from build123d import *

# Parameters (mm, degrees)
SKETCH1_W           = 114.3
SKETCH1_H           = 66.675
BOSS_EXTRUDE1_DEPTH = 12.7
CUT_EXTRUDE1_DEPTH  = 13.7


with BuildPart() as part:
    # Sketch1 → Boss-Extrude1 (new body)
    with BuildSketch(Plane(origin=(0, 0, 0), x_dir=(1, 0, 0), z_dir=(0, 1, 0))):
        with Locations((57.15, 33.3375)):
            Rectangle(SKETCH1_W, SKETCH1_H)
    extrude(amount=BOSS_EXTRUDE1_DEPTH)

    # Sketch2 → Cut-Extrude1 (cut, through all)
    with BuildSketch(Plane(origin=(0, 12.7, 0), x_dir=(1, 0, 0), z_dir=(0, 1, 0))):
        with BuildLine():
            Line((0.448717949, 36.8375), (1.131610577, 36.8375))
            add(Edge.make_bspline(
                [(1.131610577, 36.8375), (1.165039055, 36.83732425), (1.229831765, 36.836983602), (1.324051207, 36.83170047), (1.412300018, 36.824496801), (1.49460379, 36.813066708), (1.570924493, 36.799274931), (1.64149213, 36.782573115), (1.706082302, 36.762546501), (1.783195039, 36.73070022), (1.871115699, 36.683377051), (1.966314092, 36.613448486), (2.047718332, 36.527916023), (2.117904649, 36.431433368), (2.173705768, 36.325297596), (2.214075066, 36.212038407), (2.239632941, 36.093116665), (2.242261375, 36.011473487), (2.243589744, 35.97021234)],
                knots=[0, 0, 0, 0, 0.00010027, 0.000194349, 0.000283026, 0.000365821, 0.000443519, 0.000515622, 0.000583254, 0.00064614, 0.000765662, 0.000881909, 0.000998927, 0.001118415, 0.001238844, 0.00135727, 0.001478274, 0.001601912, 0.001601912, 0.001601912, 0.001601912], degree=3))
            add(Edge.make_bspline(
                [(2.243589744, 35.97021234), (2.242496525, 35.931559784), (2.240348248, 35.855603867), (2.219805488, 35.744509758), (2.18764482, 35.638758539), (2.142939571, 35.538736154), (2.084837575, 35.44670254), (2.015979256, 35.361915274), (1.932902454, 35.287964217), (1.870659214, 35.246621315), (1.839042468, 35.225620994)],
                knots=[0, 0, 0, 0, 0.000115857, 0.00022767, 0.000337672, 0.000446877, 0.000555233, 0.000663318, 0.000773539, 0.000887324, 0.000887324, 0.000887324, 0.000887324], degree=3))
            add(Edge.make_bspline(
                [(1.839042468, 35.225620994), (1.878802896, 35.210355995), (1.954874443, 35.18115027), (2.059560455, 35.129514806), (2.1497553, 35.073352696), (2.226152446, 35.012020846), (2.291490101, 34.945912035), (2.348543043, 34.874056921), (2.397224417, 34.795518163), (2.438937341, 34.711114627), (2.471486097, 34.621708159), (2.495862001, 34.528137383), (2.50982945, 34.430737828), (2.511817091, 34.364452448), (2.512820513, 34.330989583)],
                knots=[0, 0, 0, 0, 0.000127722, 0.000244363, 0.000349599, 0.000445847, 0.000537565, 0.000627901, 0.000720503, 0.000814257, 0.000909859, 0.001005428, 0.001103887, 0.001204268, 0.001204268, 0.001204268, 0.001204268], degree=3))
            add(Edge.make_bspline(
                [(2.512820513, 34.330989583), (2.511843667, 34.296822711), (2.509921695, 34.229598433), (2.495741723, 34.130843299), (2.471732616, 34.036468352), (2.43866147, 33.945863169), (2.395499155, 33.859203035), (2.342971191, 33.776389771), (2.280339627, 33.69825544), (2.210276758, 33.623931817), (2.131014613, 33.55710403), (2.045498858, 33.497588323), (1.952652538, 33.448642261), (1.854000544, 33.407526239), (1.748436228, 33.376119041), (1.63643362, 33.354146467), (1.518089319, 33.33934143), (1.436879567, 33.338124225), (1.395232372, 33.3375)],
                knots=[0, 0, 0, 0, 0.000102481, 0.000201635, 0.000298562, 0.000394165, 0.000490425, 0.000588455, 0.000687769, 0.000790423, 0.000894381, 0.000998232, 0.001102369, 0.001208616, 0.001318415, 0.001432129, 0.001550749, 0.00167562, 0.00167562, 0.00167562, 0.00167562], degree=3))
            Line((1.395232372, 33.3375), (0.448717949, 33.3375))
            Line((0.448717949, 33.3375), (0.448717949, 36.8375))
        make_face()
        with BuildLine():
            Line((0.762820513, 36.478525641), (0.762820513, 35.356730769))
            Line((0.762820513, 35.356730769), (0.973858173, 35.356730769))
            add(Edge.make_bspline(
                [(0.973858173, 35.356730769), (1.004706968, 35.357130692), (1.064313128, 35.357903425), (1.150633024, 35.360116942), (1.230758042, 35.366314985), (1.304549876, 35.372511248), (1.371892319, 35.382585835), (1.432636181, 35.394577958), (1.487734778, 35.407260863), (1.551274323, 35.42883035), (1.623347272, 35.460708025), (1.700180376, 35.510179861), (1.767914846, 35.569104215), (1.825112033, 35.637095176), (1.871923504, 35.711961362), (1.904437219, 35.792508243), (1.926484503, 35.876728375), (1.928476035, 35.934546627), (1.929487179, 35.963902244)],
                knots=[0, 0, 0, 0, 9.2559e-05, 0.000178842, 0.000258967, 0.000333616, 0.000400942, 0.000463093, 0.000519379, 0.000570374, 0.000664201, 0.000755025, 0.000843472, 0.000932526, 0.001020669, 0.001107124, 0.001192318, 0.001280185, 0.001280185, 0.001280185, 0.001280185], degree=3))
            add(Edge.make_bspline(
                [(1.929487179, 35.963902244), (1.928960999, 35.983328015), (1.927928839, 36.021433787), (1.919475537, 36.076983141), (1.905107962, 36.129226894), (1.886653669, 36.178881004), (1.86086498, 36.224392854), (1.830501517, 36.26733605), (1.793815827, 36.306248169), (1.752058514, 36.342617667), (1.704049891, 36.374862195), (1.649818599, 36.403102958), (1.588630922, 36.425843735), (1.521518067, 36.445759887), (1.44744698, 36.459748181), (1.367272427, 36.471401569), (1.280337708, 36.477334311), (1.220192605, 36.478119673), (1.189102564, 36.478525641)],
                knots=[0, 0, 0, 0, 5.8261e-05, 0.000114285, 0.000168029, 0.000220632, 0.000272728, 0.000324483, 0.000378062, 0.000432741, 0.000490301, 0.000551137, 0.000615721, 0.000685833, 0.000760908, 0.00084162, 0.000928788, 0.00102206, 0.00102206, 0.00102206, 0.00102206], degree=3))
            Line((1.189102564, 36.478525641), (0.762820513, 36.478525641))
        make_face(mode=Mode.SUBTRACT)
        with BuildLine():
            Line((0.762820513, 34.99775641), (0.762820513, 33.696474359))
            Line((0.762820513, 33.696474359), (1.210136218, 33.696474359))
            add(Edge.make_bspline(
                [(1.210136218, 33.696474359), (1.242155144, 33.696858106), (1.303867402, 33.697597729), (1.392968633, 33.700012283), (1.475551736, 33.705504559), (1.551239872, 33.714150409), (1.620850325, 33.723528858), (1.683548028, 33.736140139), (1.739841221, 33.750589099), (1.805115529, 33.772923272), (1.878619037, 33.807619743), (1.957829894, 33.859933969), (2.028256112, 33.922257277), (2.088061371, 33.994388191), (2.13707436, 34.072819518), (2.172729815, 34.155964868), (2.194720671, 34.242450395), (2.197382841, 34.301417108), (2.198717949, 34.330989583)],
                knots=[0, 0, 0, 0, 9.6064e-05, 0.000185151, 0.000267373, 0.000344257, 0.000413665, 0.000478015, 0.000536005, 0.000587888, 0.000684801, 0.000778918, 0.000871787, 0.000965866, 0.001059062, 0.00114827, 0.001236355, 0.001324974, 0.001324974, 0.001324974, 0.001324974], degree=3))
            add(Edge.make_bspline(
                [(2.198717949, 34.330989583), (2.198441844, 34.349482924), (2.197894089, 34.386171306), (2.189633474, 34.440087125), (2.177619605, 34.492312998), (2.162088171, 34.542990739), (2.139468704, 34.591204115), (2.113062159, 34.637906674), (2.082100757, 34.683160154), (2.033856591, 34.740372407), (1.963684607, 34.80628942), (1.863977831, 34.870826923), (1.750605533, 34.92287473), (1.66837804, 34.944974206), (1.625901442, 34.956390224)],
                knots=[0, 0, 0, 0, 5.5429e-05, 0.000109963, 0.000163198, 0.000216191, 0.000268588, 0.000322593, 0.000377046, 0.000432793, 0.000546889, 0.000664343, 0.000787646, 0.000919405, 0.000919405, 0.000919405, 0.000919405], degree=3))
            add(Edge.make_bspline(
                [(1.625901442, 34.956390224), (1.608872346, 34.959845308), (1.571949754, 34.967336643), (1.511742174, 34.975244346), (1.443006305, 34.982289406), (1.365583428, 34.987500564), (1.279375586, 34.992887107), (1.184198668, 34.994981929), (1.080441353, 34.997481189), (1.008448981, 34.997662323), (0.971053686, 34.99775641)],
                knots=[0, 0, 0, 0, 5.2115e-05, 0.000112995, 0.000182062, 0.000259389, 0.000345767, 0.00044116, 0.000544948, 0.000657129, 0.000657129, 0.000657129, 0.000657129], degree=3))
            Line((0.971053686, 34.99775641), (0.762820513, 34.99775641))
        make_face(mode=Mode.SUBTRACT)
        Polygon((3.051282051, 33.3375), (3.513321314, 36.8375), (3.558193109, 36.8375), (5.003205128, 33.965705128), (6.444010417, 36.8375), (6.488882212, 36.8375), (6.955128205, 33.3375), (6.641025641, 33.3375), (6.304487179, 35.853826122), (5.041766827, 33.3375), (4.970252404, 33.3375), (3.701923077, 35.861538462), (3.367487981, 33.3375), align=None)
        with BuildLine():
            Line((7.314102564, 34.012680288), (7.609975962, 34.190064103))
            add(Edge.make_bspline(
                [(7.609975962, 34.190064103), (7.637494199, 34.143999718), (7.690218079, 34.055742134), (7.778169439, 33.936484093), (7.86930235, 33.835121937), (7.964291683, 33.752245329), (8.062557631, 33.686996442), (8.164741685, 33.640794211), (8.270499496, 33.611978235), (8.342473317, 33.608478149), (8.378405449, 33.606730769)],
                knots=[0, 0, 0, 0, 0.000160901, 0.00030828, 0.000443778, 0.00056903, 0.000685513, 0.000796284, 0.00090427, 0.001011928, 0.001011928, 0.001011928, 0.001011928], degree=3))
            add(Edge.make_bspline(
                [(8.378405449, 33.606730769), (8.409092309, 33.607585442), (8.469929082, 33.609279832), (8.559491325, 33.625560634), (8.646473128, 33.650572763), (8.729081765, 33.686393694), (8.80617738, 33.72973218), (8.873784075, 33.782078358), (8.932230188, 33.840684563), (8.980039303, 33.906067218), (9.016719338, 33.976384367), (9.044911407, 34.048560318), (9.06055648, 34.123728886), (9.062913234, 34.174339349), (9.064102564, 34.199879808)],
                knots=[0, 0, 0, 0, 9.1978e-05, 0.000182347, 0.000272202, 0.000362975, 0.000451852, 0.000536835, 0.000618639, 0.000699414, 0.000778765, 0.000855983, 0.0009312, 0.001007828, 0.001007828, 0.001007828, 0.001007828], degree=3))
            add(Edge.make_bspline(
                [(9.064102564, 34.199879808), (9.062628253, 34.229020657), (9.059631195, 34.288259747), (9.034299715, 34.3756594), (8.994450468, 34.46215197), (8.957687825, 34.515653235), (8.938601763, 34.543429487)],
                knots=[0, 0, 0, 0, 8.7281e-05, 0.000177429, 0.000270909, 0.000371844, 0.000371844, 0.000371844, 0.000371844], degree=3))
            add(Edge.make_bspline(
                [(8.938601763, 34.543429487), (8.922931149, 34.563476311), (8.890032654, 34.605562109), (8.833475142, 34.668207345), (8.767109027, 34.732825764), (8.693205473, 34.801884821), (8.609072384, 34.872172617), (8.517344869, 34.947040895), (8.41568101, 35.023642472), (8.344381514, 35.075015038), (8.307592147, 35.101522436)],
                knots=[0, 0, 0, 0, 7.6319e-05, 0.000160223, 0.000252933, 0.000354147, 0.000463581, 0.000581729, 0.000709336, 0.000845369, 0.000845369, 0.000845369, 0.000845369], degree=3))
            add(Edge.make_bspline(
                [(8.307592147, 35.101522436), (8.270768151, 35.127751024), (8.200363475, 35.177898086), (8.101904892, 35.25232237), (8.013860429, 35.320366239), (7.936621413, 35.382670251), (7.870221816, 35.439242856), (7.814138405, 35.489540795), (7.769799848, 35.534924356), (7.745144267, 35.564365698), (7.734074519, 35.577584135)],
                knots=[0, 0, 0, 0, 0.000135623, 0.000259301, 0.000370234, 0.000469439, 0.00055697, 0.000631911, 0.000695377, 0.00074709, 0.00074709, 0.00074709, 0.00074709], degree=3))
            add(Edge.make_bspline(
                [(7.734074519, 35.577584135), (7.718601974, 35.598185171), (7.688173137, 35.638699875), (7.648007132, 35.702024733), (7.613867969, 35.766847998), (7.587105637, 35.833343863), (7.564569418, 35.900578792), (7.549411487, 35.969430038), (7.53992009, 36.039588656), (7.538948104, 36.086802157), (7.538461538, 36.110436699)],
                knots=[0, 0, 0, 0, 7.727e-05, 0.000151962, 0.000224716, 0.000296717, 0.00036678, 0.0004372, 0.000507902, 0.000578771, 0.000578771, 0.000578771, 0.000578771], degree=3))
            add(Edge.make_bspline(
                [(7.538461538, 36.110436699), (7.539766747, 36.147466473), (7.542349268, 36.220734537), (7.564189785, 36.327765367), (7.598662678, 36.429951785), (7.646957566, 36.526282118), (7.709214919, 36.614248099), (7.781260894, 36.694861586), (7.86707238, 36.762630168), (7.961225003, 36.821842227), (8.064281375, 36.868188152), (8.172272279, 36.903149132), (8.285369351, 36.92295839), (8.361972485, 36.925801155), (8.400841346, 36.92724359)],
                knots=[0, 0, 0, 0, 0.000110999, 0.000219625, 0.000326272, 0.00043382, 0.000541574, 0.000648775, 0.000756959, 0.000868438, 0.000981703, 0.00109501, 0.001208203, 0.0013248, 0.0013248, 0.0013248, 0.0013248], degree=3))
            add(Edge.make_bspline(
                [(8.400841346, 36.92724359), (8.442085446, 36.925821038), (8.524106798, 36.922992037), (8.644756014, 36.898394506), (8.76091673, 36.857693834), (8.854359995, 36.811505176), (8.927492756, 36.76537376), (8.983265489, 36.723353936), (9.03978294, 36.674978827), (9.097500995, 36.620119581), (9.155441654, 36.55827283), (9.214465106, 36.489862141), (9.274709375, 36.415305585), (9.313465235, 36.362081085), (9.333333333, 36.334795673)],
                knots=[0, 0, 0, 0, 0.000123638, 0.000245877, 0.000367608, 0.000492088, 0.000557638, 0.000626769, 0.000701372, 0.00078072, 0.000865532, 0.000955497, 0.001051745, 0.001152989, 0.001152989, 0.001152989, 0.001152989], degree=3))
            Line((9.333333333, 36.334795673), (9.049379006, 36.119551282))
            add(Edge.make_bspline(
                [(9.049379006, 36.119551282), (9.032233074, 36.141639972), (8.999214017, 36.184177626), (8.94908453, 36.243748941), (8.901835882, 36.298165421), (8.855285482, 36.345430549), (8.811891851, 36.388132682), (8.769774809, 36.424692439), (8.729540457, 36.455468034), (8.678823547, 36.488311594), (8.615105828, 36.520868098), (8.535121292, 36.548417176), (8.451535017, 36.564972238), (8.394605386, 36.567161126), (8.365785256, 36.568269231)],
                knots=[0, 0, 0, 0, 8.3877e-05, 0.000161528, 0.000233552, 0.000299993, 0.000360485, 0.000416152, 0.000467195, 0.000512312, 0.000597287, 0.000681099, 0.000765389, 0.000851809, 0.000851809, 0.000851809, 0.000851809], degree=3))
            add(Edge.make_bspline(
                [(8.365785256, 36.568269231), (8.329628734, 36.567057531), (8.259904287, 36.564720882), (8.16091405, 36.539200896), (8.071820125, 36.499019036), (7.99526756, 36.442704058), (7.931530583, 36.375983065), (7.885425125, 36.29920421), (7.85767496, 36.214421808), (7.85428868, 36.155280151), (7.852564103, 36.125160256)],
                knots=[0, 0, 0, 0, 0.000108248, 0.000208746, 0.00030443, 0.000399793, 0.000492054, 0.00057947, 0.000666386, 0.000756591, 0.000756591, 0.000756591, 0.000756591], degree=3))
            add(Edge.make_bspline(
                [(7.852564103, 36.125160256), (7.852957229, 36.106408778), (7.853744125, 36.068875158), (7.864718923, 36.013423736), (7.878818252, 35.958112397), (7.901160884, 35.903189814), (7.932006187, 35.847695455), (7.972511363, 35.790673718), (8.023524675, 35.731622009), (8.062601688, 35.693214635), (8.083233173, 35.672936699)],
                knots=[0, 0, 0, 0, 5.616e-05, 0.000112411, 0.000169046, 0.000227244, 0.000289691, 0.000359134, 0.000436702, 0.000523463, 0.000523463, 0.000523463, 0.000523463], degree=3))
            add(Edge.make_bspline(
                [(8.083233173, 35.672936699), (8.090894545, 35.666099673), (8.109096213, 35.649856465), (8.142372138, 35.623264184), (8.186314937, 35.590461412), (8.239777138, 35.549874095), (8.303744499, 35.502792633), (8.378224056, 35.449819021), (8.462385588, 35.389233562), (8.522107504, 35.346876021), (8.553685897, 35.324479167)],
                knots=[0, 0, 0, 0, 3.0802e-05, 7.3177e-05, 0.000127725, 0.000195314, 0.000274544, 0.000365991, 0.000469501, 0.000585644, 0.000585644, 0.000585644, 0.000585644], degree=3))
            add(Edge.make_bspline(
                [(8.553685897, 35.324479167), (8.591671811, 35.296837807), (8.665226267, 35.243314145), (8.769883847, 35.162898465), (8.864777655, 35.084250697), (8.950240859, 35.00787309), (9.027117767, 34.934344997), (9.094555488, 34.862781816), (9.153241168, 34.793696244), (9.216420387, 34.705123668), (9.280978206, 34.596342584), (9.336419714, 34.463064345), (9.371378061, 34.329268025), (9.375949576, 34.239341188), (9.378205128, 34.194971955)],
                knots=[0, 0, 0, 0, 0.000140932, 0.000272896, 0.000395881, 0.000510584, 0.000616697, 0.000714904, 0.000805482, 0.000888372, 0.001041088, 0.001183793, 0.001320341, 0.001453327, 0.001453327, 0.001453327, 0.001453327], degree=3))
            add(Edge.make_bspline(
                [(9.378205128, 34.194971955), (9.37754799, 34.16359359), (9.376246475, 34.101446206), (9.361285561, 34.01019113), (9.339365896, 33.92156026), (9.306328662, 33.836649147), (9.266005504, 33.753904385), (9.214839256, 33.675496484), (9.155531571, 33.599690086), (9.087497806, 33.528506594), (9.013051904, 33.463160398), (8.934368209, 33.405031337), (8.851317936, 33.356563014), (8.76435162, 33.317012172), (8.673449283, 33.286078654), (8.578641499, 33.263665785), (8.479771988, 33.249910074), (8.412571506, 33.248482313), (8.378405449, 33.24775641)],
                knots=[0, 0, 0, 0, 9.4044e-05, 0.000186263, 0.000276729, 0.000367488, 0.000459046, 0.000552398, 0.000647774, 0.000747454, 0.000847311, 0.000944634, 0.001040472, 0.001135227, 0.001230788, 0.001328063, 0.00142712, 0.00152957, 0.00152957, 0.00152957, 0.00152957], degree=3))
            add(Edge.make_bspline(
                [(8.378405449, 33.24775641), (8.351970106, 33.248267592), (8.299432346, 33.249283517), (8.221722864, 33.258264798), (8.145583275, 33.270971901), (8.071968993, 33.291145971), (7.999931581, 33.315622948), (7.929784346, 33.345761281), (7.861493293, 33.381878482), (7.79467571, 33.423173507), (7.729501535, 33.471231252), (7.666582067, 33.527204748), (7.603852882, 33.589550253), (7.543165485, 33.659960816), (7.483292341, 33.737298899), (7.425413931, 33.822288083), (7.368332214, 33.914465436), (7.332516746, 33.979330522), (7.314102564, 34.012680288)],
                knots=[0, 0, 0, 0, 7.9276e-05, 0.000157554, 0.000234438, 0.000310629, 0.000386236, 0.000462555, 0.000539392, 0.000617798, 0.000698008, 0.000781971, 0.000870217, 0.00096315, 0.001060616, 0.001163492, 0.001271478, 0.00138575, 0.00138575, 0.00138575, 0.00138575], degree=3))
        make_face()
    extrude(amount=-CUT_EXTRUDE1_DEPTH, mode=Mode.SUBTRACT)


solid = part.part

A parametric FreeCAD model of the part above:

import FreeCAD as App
import Part
import Sketcher
Q = App.Units.Quantity

doc = App.newDocument("Part")
body = doc.addObject("PartDesign::Body", "Body")
body.AllowCompound = True

# Sketch on XZ plane
sketch1 = body.newObject("Sketcher::SketchObject", "Sketch")
sketch1.AttachmentSupport = (doc.getObject("XZ_Plane"), [""])
sketch1.MapMode = "FlatFace"
sketch1.addGeometry([
    Part.LineSegment(App.Vector(0, -67, 0), App.Vector(0, 0, 0)),
    Part.LineSegment(App.Vector(0, 0, 0), App.Vector(114, 0, 0)),
    Part.LineSegment(App.Vector(114, 0, 0), App.Vector(114, -67, 0)),
    Part.LineSegment(App.Vector(114, -67, 0), App.Vector(0, -67, 0)),
], False)
sketch1.addConstraint([
    Sketcher.Constraint("Coincident", 0, 2, 1, 1),
    Sketcher.Constraint("Coincident", 1, 2, 2, 1),
    Sketcher.Constraint("Coincident", 2, 2, 3, 1),
    Sketcher.Constraint("Coincident", 3, 2, 0, 1),
    Sketcher.Constraint("Vertical", 0),
    Sketcher.Constraint("Horizontal", 1),
    Sketcher.Constraint("Vertical", 2),
    Sketcher.Constraint("Horizontal", 3),
    Sketcher.Constraint("Coincident", 0, 2, -1, 1),
    Sketcher.Constraint("DistanceX", 1, 1, 1, 2, Q("4.5 in")),
    Sketcher.Constraint("DistanceY", 0, 1, 0, 2, Q("2.625 in")),
])
pad1 = body.newObject("PartDesign::Pad", "Pad")
pad1.Profile = sketch1
pad1.Length = Q("0.5 in")
pad1.Reversed = True

# Sketch on XZ plane
sketch2 = body.newObject("Sketcher::SketchObject", "Sketch001")
sketch2.AttachmentSupport = (doc.getObject("XZ_Plane"), [""])
sketch2.MapMode = "FlatFace"
sketch2.AttachmentOffset = App.Placement(App.Vector(0, 0, -0.5 * 25.4), App.Rotation())
sketch2.addGeometry([
    Part.LineSegment(App.Vector(1.131611, -36.8375, 0), App.Vector(0.448718, -36.8375, 0)),  # 0
    Part.LineSegment(App.Vector(0.448718, -36.8375, 0), App.Vector(0.448718, -33.3375, 0)),  # 1
    Part.LineSegment(App.Vector(0.448718, -33.3375, 0), App.Vector(1.395232, -33.3375, 0)),  # 2
    Part.BSplineCurve([App.Vector(2.512821, -34.33099, 0), App.Vector(2.511844, -34.296823, 0), App.Vector(2.509922, -34.229598, 0), App.Vector(2.495742, -34.130843, 0), App.Vector(2.471733, -34.036468, 0), App.Vector(2.438661, -33.945863, 0), App.Vector(2.395499, -33.859203, 0), App.Vector(2.342971, -33.77639, 0), App.Vector(2.28034, -33.698255, 0), App.Vector(2.210277, -33.623932, 0), App.Vector(2.131015, -33.557104, 0), App.Vector(2.045499, -33.497588, 0), App.Vector(1.952653, -33.448642, 0), App.Vector(1.854001, -33.407526, 0), App.Vector(1.748436, -33.376119, 0), App.Vector(1.636434, -33.354146, 0), App.Vector(1.518089, -33.339341, 0), App.Vector(1.43688, -33.338124, 0), App.Vector(1.395232, -33.3375, 0)], [4, 1, 1, 1, 1, 1, 1, 1, 1, 1, 1, 1, 1, 1, 1, 1, 4], [0, 0.000102481, 0.000201635, 0.000298562, 0.000394165, 0.000490425, 0.000588455, 0.000687769, 0.000790423, 0.000894381, 0.000998232, 0.001102369, 0.001208616, 0.001318415, 0.001432129, 0.001550749, 0.00167562], False, 3, [1, 1, 1, 1, 1, 1, 1, 1, 1, 1, 1, 1, 1, 1, 1, 1, 1, 1, 1], False),  # 3
    Part.BSplineCurve([App.Vector(1.839042, -35.225621, 0), App.Vector(1.878803, -35.210356, 0), App.Vector(1.954874, -35.18115, 0), App.Vector(2.05956, -35.129515, 0), App.Vector(2.149755, -35.073353, 0), App.Vector(2.226152, -35.012021, 0), App.Vector(2.29149, -34.945912, 0), App.Vector(2.348543, -34.874057, 0), App.Vector(2.397224, -34.795518, 0), App.Vector(2.438937, -34.711115, 0), App.Vector(2.471486, -34.621708, 0), App.Vector(2.495862, -34.528137, 0), App.Vector(2.509829, -34.430738, 0), App.Vector(2.511817, -34.364452, 0), App.Vector(2.512821, -34.33099, 0)], [4, 1, 1, 1, 1, 1, 1, 1, 1, 1, 1, 1, 4], [0, 0.000127722, 0.000244363, 0.000349599, 0.000445847, 0.000537565, 0.000627901, 0.000720503, 0.000814257, 0.000909859, 0.001005428, 0.001103887, 0.001204268], False, 3, [1, 1, 1, 1, 1, 1, 1, 1, 1, 1, 1, 1, 1, 1, 1], False),  # 4
    Part.BSplineCurve([App.Vector(2.24359, -35.970212, 0), App.Vector(2.242497, -35.93156, 0), App.Vector(2.240348, -35.855604, 0), App.Vector(2.219805, -35.74451, 0), App.Vector(2.187645, -35.638759, 0), App.Vector(2.14294, -35.538736, 0), App.Vector(2.084838, -35.446703, 0), App.Vector(2.015979, -35.361915, 0), App.Vector(1.932902, -35.287964, 0), App.Vector(1.870659, -35.246621, 0), App.Vector(1.839042, -35.225621, 0)], [4, 1, 1, 1, 1, 1, 1, 1, 4], [0, 0.000115857, 0.00022767, 0.000337672, 0.000446877, 0.000555233, 0.000663318, 0.000773539, 0.000887324], False, 3, [1, 1, 1, 1, 1, 1, 1, 1, 1, 1, 1], False),  # 5
    Part.BSplineCurve([App.Vector(1.131611, -36.8375, 0), App.Vector(1.165039, -36.837324, 0), App.Vector(1.229832, -36.836984, 0), App.Vector(1.324051, -36.8317, 0), App.Vector(1.4123, -36.824497, 0), App.Vector(1.494604, -36.813067, 0), App.Vector(1.570924, -36.799275, 0), App.Vector(1.641492, -36.782573, 0), App.Vector(1.706082, -36.762547, 0), App.Vector(1.783195, -36.7307, 0), App.Vector(1.871116, -36.683377, 0), App.Vector(1.966314, -36.613448, 0), App.Vector(2.047718, -36.527916, 0), App.Vector(2.117905, -36.431433, 0), App.Vector(2.173706, -36.325298, 0), App.Vector(2.214075, -36.212038, 0), App.Vector(2.239633, -36.093117, 0), App.Vector(2.242261, -36.011473, 0), App.Vector(2.24359, -35.970212, 0)], [4, 1, 1, 1, 1, 1, 1, 1, 1, 1, 1, 1, 1, 1, 1, 1, 4], [0, 0.00010027, 0.000194349, 0.000283026, 0.000365821, 0.000443519, 0.000515622, 0.000583254, 0.00064614, 0.000765662, 0.000881909, 0.000998927, 0.001118415, 0.001238844, 0.00135727, 0.001478274, 0.001601912], False, 3, [1, 1, 1, 1, 1, 1, 1, 1, 1, 1, 1, 1, 1, 1, 1, 1, 1, 1, 1], False),  # 6
    Part.LineSegment(App.Vector(0.762821, -34.997756, 0), App.Vector(0.971054, -34.997756, 0)),  # 7
    Part.BSplineCurve([App.Vector(1.625901, -34.95639, 0), App.Vector(1.608872, -34.959845, 0), App.Vector(1.57195, -34.967337, 0), App.Vector(1.511742, -34.975244, 0), App.Vector(1.443006, -34.982289, 0), App.Vector(1.365583, -34.987501, 0), App.Vector(1.279376, -34.992887, 0), App.Vector(1.184199, -34.994982, 0), App.Vector(1.080441, -34.997481, 0), App.Vector(1.008449, -34.997662, 0), App.Vector(0.971054, -34.997756, 0)], [4, 1, 1, 1, 1, 1, 1, 1, 4], [0, 0.000052115, 0.000112995, 0.000182062, 0.000259389, 0.000345767, 0.00044116, 0.000544948, 0.000657129], False, 3, [1, 1, 1, 1, 1, 1, 1, 1, 1, 1, 1], False),  # 8
    Part.BSplineCurve([App.Vector(2.198718, -34.33099, 0), App.Vector(2.198442, -34.349483, 0), App.Vector(2.197894, -34.386171, 0), App.Vector(2.189633, -34.440087, 0), App.Vector(2.17762, -34.492313, 0), App.Vector(2.162088, -34.542991, 0), App.Vector(2.139469, -34.591204, 0), App.Vector(2.113062, -34.637907, 0), App.Vector(2.082101, -34.68316, 0), App.Vector(2.033857, -34.740372, 0), App.Vector(1.963685, -34.806289, 0), App.Vector(1.863978, -34.870827, 0), App.Vector(1.750606, -34.922875, 0), App.Vector(1.668378, -34.944974, 0), App.Vector(1.625901, -34.95639, 0)], [4, 1, 1, 1, 1, 1, 1, 1, 1, 1, 1, 1, 4], [0, 0.000055429, 0.000109963, 0.000163198, 0.000216191, 0.000268588, 0.000322593, 0.000377046, 0.000432793, 0.000546889, 0.000664343, 0.000787646, 0.000919405], False, 3, [1, 1, 1, 1, 1, 1, 1, 1, 1, 1, 1, 1, 1, 1, 1], False),  # 9
    Part.BSplineCurve([App.Vector(1.210136, -33.696474, 0), App.Vector(1.242155, -33.696858, 0), App.Vector(1.303867, -33.697598, 0), App.Vector(1.392969, -33.700012, 0), App.Vector(1.475552, -33.705505, 0), App.Vector(1.55124, -33.71415, 0), App.Vector(1.62085, -33.723529, 0), App.Vector(1.683548, -33.73614, 0), App.Vector(1.739841, -33.750589, 0), App.Vector(1.805116, -33.772923, 0), App.Vector(1.878619, -33.80762, 0), App.Vector(1.95783, -33.859934, 0), App.Vector(2.028256, -33.922257, 0), App.Vector(2.088061, -33.994388, 0), App.Vector(2.137074, -34.07282, 0), App.Vector(2.17273, -34.155965, 0), App.Vector(2.194721, -34.24245, 0), App.Vector(2.197383, -34.301417, 0), App.Vector(2.198718, -34.33099, 0)], [4, 1, 1, 1, 1, 1, 1, 1, 1, 1, 1, 1, 1, 1, 1, 1, 4], [0, 0.000096064, 0.000185151, 0.000267373, 0.000344257, 0.000413665, 0.000478015, 0.000536005, 0.000587888, 0.000684801, 0.000778918, 0.000871787, 0.000965866, 0.001059062, 0.00114827, 0.001236355, 0.001324974], False, 3, [1, 1, 1, 1, 1, 1, 1, 1, 1, 1, 1, 1, 1, 1, 1, 1, 1, 1, 1], False),  # 10
    Part.LineSegment(App.Vector(1.210136, -33.696474, 0), App.Vector(0.762821, -33.696474, 0)),  # 11
    Part.LineSegment(App.Vector(0.762821, -33.696474, 0), App.Vector(0.762821, -34.997756, 0)),  # 12
    Part.LineSegment(App.Vector(0.762821, -36.478526, 0), App.Vector(1.189103, -36.478526, 0)),  # 13
    Part.BSplineCurve([App.Vector(1.929487, -35.963902, 0), App.Vector(1.928961, -35.983328, 0), App.Vector(1.927929, -36.021434, 0), App.Vector(1.919476, -36.076983, 0), App.Vector(1.905108, -36.129227, 0), App.Vector(1.886654, -36.178881, 0), App.Vector(1.860865, -36.224393, 0), App.Vector(1.830502, -36.267336, 0), App.Vector(1.793816, -36.306248, 0), App.Vector(1.752059, -36.342618, 0), App.Vector(1.70405, -36.374862, 0), App.Vector(1.649819, -36.403103, 0), App.Vector(1.588631, -36.425844, 0), App.Vector(1.521518, -36.44576, 0), App.Vector(1.447447, -36.459748, 0), App.Vector(1.367272, -36.471402, 0), App.Vector(1.280338, -36.477334, 0), App.Vector(1.220193, -36.47812, 0), App.Vector(1.189103, -36.478526, 0)], [4, 1, 1, 1, 1, 1, 1, 1, 1, 1, 1, 1, 1, 1, 1, 1, 4], [0, 0.000058261, 0.000114285, 0.000168029, 0.000220632, 0.000272728, 0.000324483, 0.000378062, 0.000432741, 0.000490301, 0.000551137, 0.000615721, 0.000685833, 0.000760908, 0.00084162, 0.000928788, 0.00102206], False, 3, [1, 1, 1, 1, 1, 1, 1, 1, 1, 1, 1, 1, 1, 1, 1, 1, 1, 1, 1], False),  # 14
    Part.BSplineCurve([App.Vector(0.973858, -35.356731, 0), App.Vector(1.004707, -35.357131, 0), App.Vector(1.064313, -35.357903, 0), App.Vector(1.150633, -35.360117, 0), App.Vector(1.230758, -35.366315, 0), App.Vector(1.30455, -35.372511, 0), App.Vector(1.371892, -35.382586, 0), App.Vector(1.432636, -35.394578, 0), App.Vector(1.487735, -35.407261, 0), App.Vector(1.551274, -35.42883, 0), App.Vector(1.623347, -35.460708, 0), App.Vector(1.70018, -35.51018, 0), App.Vector(1.767915, -35.569104, 0), App.Vector(1.825112, -35.637095, 0), App.Vector(1.871924, -35.711961, 0), App.Vector(1.904437, -35.792508, 0), App.Vector(1.926485, -35.876728, 0), App.Vector(1.928476, -35.934547, 0), App.Vector(1.929487, -35.963902, 0)], [4, 1, 1, 1, 1, 1, 1, 1, 1, 1, 1, 1, 1, 1, 1, 1, 4], [0, 0.000092559, 0.000178842, 0.000258967, 0.000333616, 0.000400942, 0.000463093, 0.000519379, 0.000570374, 0.000664201, 0.000755025, 0.000843472, 0.000932526, 0.001020669, 0.001107124, 0.001192318, 0.001280185], False, 3, [1, 1, 1, 1, 1, 1, 1, 1, 1, 1, 1, 1, 1, 1, 1, 1, 1, 1, 1], False),  # 15
    Part.LineSegment(App.Vector(0.973858, -35.356731, 0), App.Vector(0.762821, -35.356731, 0)),  # 16
    Part.LineSegment(App.Vector(0.762821, -35.356731, 0), App.Vector(0.762821, -36.478526, 0)),  # 17
    Part.LineSegment(App.Vector(3.513321, -36.8375, 0), App.Vector(3.051282, -33.3375, 0)),  # 18
    Part.LineSegment(App.Vector(3.051282, -33.3375, 0), App.Vector(3.367488, -33.3375, 0)),  # 19
    Part.LineSegment(App.Vector(3.367488, -33.3375, 0), App.Vector(3.701923, -35.861538, 0)),  # 20
    Part.LineSegment(App.Vector(3.701923, -35.861538, 0), App.Vector(4.970252, -33.3375, 0)),  # 21
    Part.LineSegment(App.Vector(4.970252, -33.3375, 0), App.Vector(5.041767, -33.3375, 0)),  # 22
    Part.LineSegment(App.Vector(5.041767, -33.3375, 0), App.Vector(6.304487, -35.853826, 0)),  # 23
    Part.LineSegment(App.Vector(6.304487, -35.853826, 0), App.Vector(6.641026, -33.3375, 0)),  # 24
    Part.LineSegment(App.Vector(6.641026, -33.3375, 0), App.Vector(6.955128, -33.3375, 0)),  # 25
    Part.LineSegment(App.Vector(6.955128, -33.3375, 0), App.Vector(6.488882, -36.8375, 0)),  # 26
    Part.LineSegment(App.Vector(6.488882, -36.8375, 0), App.Vector(6.44401, -36.8375, 0)),  # 27
    Part.LineSegment(App.Vector(6.44401, -36.8375, 0), App.Vector(5.003205, -33.965705, 0)),  # 28
    Part.LineSegment(App.Vector(5.003205, -33.965705, 0), App.Vector(3.558193, -36.8375, 0)),  # 29
    Part.LineSegment(App.Vector(3.558193, -36.8375, 0), App.Vector(3.513321, -36.8375, 0)),  # 30
    Part.LineSegment(App.Vector(7.609976, -34.190064, 0), App.Vector(7.314103, -34.01268, 0)),  # 31
    Part.BSplineCurve([App.Vector(8.378405, -33.247756, 0), App.Vector(8.35197, -33.248268, 0), App.Vector(8.299432, -33.249284, 0), App.Vector(8.221723, -33.258265, 0), App.Vector(8.145583, -33.270972, 0), App.Vector(8.071969, -33.291146, 0), App.Vector(7.999932, -33.315623, 0), App.Vector(7.929784, -33.345761, 0), App.Vector(7.861493, -33.381878, 0), App.Vector(7.794676, -33.423174, 0), App.Vector(7.729502, -33.471231, 0), App.Vector(7.666582, -33.527205, 0), App.Vector(7.603853, -33.58955, 0), App.Vector(7.543165, -33.659961, 0), App.Vector(7.483292, -33.737299, 0), App.Vector(7.425414, -33.822288, 0), App.Vector(7.368332, -33.914465, 0), App.Vector(7.332517, -33.979331, 0), App.Vector(7.314103, -34.01268, 0)], [4, 1, 1, 1, 1, 1, 1, 1, 1, 1, 1, 1, 1, 1, 1, 1, 4], [0, 0.000079276, 0.000157554, 0.000234438, 0.000310629, 0.000386236, 0.000462555, 0.000539392, 0.000617798, 0.000698008, 0.000781971, 0.000870217, 0.00096315, 0.001060616, 0.001163492, 0.001271478, 0.00138575], False, 3, [1, 1, 1, 1, 1, 1, 1, 1, 1, 1, 1, 1, 1, 1, 1, 1, 1, 1, 1], False),  # 32
    Part.BSplineCurve([App.Vector(9.378205, -34.194972, 0), App.Vector(9.377548, -34.163594, 0), App.Vector(9.376246, -34.101446, 0), App.Vector(9.361286, -34.010191, 0), App.Vector(9.339366, -33.92156, 0), App.Vector(9.306329, -33.836649, 0), App.Vector(9.266006, -33.753904, 0), App.Vector(9.214839, -33.675496, 0), App.Vector(9.155532, -33.59969, 0), App.Vector(9.087498, -33.528507, 0), App.Vector(9.013052, -33.46316, 0), App.Vector(8.934368, -33.405031, 0), App.Vector(8.851318, -33.356563, 0), App.Vector(8.764352, -33.317012, 0), App.Vector(8.673449, -33.286079, 0), App.Vector(8.578641, -33.263666, 0), App.Vector(8.479772, -33.24991, 0), App.Vector(8.412572, -33.248482, 0), App.Vector(8.378405, -33.247756, 0)], [4, 1, 1, 1, 1, 1, 1, 1, 1, 1, 1, 1, 1, 1, 1, 1, 4], [0, 0.000094044, 0.000186263, 0.000276729, 0.000367488, 0.000459046, 0.000552398, 0.000647774, 0.000747454, 0.000847311, 0.000944634, 0.001040472, 0.001135227, 0.001230788, 0.001328063, 0.00142712, 0.00152957], False, 3, [1, 1, 1, 1, 1, 1, 1, 1, 1, 1, 1, 1, 1, 1, 1, 1, 1, 1, 1], False),  # 33
    Part.BSplineCurve([App.Vector(8.553686, -35.324479, 0), App.Vector(8.591672, -35.296838, 0), App.Vector(8.665226, -35.243314, 0), App.Vector(8.769884, -35.162898, 0), App.Vector(8.864778, -35.084251, 0), App.Vector(8.950241, -35.007873, 0), App.Vector(9.027118, -34.934345, 0), App.Vector(9.094555, -34.862782, 0), App.Vector(9.153241, -34.793696, 0), App.Vector(9.21642, -34.705124, 0), App.Vector(9.280978, -34.596343, 0), App.Vector(9.33642, -34.463064, 0), App.Vector(9.371378, -34.329268, 0), App.Vector(9.37595, -34.239341, 0), App.Vector(9.378205, -34.194972, 0)], [4, 1, 1, 1, 1, 1, 1, 1, 1, 1, 1, 1, 4], [0, 0.000140932, 0.000272896, 0.000395881, 0.000510584, 0.000616697, 0.000714904, 0.000805482, 0.000888372, 0.001041088, 0.001183793, 0.001320341, 0.001453327], False, 3, [1, 1, 1, 1, 1, 1, 1, 1, 1, 1, 1, 1, 1, 1, 1], False),  # 34
    Part.BSplineCurve([App.Vector(8.083233, -35.672937, 0), App.Vector(8.090895, -35.6661, 0), App.Vector(8.109096, -35.649856, 0), App.Vector(8.142372, -35.623264, 0), App.Vector(8.186315, -35.590461, 0), App.Vector(8.239777, -35.549874, 0), App.Vector(8.303744, -35.502793, 0), App.Vector(8.378224, -35.449819, 0), App.Vector(8.462386, -35.389234, 0), App.Vector(8.522108, -35.346876, 0), App.Vector(8.553686, -35.324479, 0)], [4, 1, 1, 1, 1, 1, 1, 1, 4], [0, 0.000030802, 0.000073177, 0.000127725, 0.000195314, 0.000274544, 0.000365991, 0.000469501, 0.000585644], False, 3, [1, 1, 1, 1, 1, 1, 1, 1, 1, 1, 1], False),  # 35
    Part.BSplineCurve([App.Vector(7.852564, -36.12516, 0), App.Vector(7.852957, -36.106409, 0), App.Vector(7.853744, -36.068875, 0), App.Vector(7.864719, -36.013424, 0), App.Vector(7.878818, -35.958112, 0), App.Vector(7.901161, -35.90319, 0), App.Vector(7.932006, -35.847695, 0), App.Vector(7.972511, -35.790674, 0), App.Vector(8.023525, -35.731622, 0), App.Vector(8.062602, -35.693215, 0), App.Vector(8.083233, -35.672937, 0)], [4, 1, 1, 1, 1, 1, 1, 1, 4], [0, 0.00005616, 0.000112411, 0.000169046, 0.000227244, 0.000289691, 0.000359134, 0.000436702, 0.000523463], False, 3, [1, 1, 1, 1, 1, 1, 1, 1, 1, 1, 1], False),  # 36
    Part.BSplineCurve([App.Vector(8.365785, -36.568269, 0), App.Vector(8.329629, -36.567058, 0), App.Vector(8.259904, -36.564721, 0), App.Vector(8.160914, -36.539201, 0), App.Vector(8.07182, -36.499019, 0), App.Vector(7.995268, -36.442704, 0), App.Vector(7.931531, -36.375983, 0), App.Vector(7.885425, -36.299204, 0), App.Vector(7.857675, -36.214422, 0), App.Vector(7.854289, -36.15528, 0), App.Vector(7.852564, -36.12516, 0)], [4, 1, 1, 1, 1, 1, 1, 1, 4], [0, 0.000108248, 0.000208746, 0.00030443, 0.000399793, 0.000492054, 0.00057947, 0.000666386, 0.000756591], False, 3, [1, 1, 1, 1, 1, 1, 1, 1, 1, 1, 1], False),  # 37
    Part.BSplineCurve([App.Vector(9.049379, -36.119551, 0), App.Vector(9.032233, -36.14164, 0), App.Vector(8.999214, -36.184178, 0), App.Vector(8.949085, -36.243749, 0), App.Vector(8.901836, -36.298165, 0), App.Vector(8.855285, -36.345431, 0), App.Vector(8.811892, -36.388133, 0), App.Vector(8.769775, -36.424692, 0), App.Vector(8.72954, -36.455468, 0), App.Vector(8.678824, -36.488312, 0), App.Vector(8.615106, -36.520868, 0), App.Vector(8.535121, -36.548417, 0), App.Vector(8.451535, -36.564972, 0), App.Vector(8.394605, -36.567161, 0), App.Vector(8.365785, -36.568269, 0)], [4, 1, 1, 1, 1, 1, 1, 1, 1, 1, 1, 1, 4], [0, 0.000083877, 0.000161528, 0.000233552, 0.000299993, 0.000360485, 0.000416152, 0.000467195, 0.000512312, 0.000597287, 0.000681099, 0.000765389, 0.000851809], False, 3, [1, 1, 1, 1, 1, 1, 1, 1, 1, 1, 1, 1, 1, 1, 1], False),  # 38
    Part.LineSegment(App.Vector(9.049379, -36.119551, 0), App.Vector(9.333333, -36.334796, 0)),  # 39
    Part.BSplineCurve([App.Vector(8.400841, -36.927244, 0), App.Vector(8.442085, -36.925821, 0), App.Vector(8.524107, -36.922992, 0), App.Vector(8.644756, -36.898395, 0), App.Vector(8.760917, -36.857694, 0), App.Vector(8.85436, -36.811505, 0), App.Vector(8.927493, -36.765374, 0), App.Vector(8.983265, -36.723354, 0), App.Vector(9.039783, -36.674979, 0), App.Vector(9.097501, -36.62012, 0), App.Vector(9.155442, -36.558273, 0), App.Vector(9.214465, -36.489862, 0), App.Vector(9.274709, -36.415306, 0), App.Vector(9.313465, -36.362081, 0), App.Vector(9.333333, -36.334796, 0)], [4, 1, 1, 1, 1, 1, 1, 1, 1, 1, 1, 1, 4], [0, 0.000123638, 0.000245877, 0.000367608, 0.000492088, 0.000557638, 0.000626769, 0.000701372, 0.00078072, 0.000865532, 0.000955497, 0.001051745, 0.001152989], False, 3, [1, 1, 1, 1, 1, 1, 1, 1, 1, 1, 1, 1, 1, 1, 1], False),  # 40
    Part.BSplineCurve([App.Vector(7.538462, -36.110437, 0), App.Vector(7.539767, -36.147466, 0), App.Vector(7.542349, -36.220735, 0), App.Vector(7.56419, -36.327765, 0), App.Vector(7.598663, -36.429952, 0), App.Vector(7.646958, -36.526282, 0), App.Vector(7.709215, -36.614248, 0), App.Vector(7.781261, -36.694862, 0), App.Vector(7.867072, -36.76263, 0), App.Vector(7.961225, -36.821842, 0), App.Vector(8.064281, -36.868188, 0), App.Vector(8.172272, -36.903149, 0), App.Vector(8.285369, -36.922958, 0), App.Vector(8.361972, -36.925801, 0), App.Vector(8.400841, -36.927244, 0)], [4, 1, 1, 1, 1, 1, 1, 1, 1, 1, 1, 1, 4], [0, 0.000110999, 0.000219625, 0.000326272, 0.00043382, 0.000541574, 0.000648775, 0.000756959, 0.000868438, 0.000981703, 0.00109501, 0.001208203, 0.0013248], False, 3, [1, 1, 1, 1, 1, 1, 1, 1, 1, 1, 1, 1, 1, 1, 1], False),  # 41
    Part.BSplineCurve([App.Vector(7.734075, -35.577584, 0), App.Vector(7.718602, -35.598185, 0), App.Vector(7.688173, -35.6387, 0), App.Vector(7.648007, -35.702025, 0), App.Vector(7.613868, -35.766848, 0), App.Vector(7.587106, -35.833344, 0), App.Vector(7.564569, -35.900579, 0), App.Vector(7.549411, -35.96943, 0), App.Vector(7.53992, -36.039589, 0), App.Vector(7.538948, -36.086802, 0), App.Vector(7.538462, -36.110437, 0)], [4, 1, 1, 1, 1, 1, 1, 1, 4], [0, 0.00007727, 0.000151962, 0.000224716, 0.000296717, 0.00036678, 0.0004372, 0.000507902, 0.000578771], False, 3, [1, 1, 1, 1, 1, 1, 1, 1, 1, 1, 1], False),  # 42
    Part.BSplineCurve([App.Vector(8.307592, -35.101522, 0), App.Vector(8.270768, -35.127751, 0), App.Vector(8.200363, -35.177898, 0), App.Vector(8.101905, -35.252322, 0), App.Vector(8.01386, -35.320366, 0), App.Vector(7.936621, -35.38267, 0), App.Vector(7.870222, -35.439243, 0), App.Vector(7.814138, -35.489541, 0), App.Vector(7.7698, -35.534924, 0), App.Vector(7.745144, -35.564366, 0), App.Vector(7.734075, -35.577584, 0)], [4, 1, 1, 1, 1, 1, 1, 1, 4], [0, 0.000135623, 0.000259301, 0.000370234, 0.000469439, 0.00055697, 0.000631911, 0.000695377, 0.00074709], False, 3, [1, 1, 1, 1, 1, 1, 1, 1, 1, 1, 1], False),  # 43
    Part.BSplineCurve([App.Vector(8.938602, -34.543429, 0), App.Vector(8.922931, -34.563476, 0), App.Vector(8.890033, -34.605562, 0), App.Vector(8.833475, -34.668207, 0), App.Vector(8.767109, -34.732826, 0), App.Vector(8.693205, -34.801885, 0), App.Vector(8.609072, -34.872173, 0), App.Vector(8.517345, -34.947041, 0), App.Vector(8.415681, -35.023642, 0), App.Vector(8.344382, -35.075015, 0), App.Vector(8.307592, -35.101522, 0)], [4, 1, 1, 1, 1, 1, 1, 1, 4], [0, 0.000076319, 0.000160223, 0.000252933, 0.000354147, 0.000463581, 0.000581729, 0.000709336, 0.000845369], False, 3, [1, 1, 1, 1, 1, 1, 1, 1, 1, 1, 1], False),  # 44
    Part.BSplineCurve([App.Vector(9.064103, -34.19988, 0), App.Vector(9.062628, -34.229021, 0), App.Vector(9.059631, -34.28826, 0), App.Vector(9.0343, -34.375659, 0), App.Vector(8.99445, -34.462152, 0), App.Vector(8.957688, -34.515653, 0), App.Vector(8.938602, -34.543429, 0)], [4, 1, 1, 1, 4], [0, 0.000087281, 0.000177429, 0.000270909, 0.000371844], False, 3, [1, 1, 1, 1, 1, 1, 1], False),  # 45
    Part.BSplineCurve([App.Vector(8.378405, -33.606731, 0), App.Vector(8.409092, -33.607585, 0), App.Vector(8.469929, -33.60928, 0), App.Vector(8.559491, -33.625561, 0), App.Vector(8.646473, -33.650573, 0), App.Vector(8.729082, -33.686394, 0), App.Vector(8.806177, -33.729732, 0), App.Vector(8.873784, -33.782078, 0), App.Vector(8.93223, -33.840685, 0), App.Vector(8.980039, -33.906067, 0), App.Vector(9.016719, -33.976384, 0), App.Vector(9.044911, -34.04856, 0), App.Vector(9.060556, -34.123729, 0), App.Vector(9.062913, -34.174339, 0), App.Vector(9.064103, -34.19988, 0)], [4, 1, 1, 1, 1, 1, 1, 1, 1, 1, 1, 1, 4], [0, 0.000091978, 0.000182347, 0.000272202, 0.000362975, 0.000451852, 0.000536835, 0.000618639, 0.000699414, 0.000778765, 0.000855983, 0.0009312, 0.001007828], False, 3, [1, 1, 1, 1, 1, 1, 1, 1, 1, 1, 1, 1, 1, 1, 1], False),  # 46
    Part.BSplineCurve([App.Vector(7.609976, -34.190064, 0), App.Vector(7.637494, -34.144, 0), App.Vector(7.690218, -34.055742, 0), App.Vector(7.778169, -33.936484, 0), App.Vector(7.869302, -33.835122, 0), App.Vector(7.964292, -33.752245, 0), App.Vector(8.062558, -33.686996, 0), App.Vector(8.164742, -33.640794, 0), App.Vector(8.270499, -33.611978, 0), App.Vector(8.342473, -33.608478, 0), App.Vector(8.378405, -33.606731, 0)], [4, 1, 1, 1, 1, 1, 1, 1, 4], [0, 0.000160901, 0.00030828, 0.000443778, 0.00056903, 0.000685513, 0.000796284, 0.00090427, 0.001011928], False, 3, [1, 1, 1, 1, 1, 1, 1, 1, 1, 1, 1], False),  # 47
], False)
sketch2.addConstraint([
    Sketcher.Constraint("Block", 3),
    Sketcher.Constraint("Block", 4),
    Sketcher.Constraint("Block", 5),
    Sketcher.Constraint("Block", 6),
    Sketcher.Constraint("Block", 8),
    Sketcher.Constraint("Block", 9),
    Sketcher.Constraint("Block", 10),
    Sketcher.Constraint("Block", 14),
    Sketcher.Constraint("Block", 15),
    Sketcher.Constraint("Block", 32),
    Sketcher.Constraint("Block", 33),
    Sketcher.Constraint("Block", 34),
    Sketcher.Constraint("Block", 35),
    Sketcher.Constraint("Block", 36),
    Sketcher.Constraint("Block", 37),
    Sketcher.Constraint("Block", 38),
    Sketcher.Constraint("Block", 40),
    Sketcher.Constraint("Block", 41),
    Sketcher.Constraint("Block", 42),
    Sketcher.Constraint("Block", 43),
    Sketcher.Constraint("Block", 44),
    Sketcher.Constraint("Block", 45),
    Sketcher.Constraint("Block", 46),
    Sketcher.Constraint("Block", 47),
    Sketcher.Constraint("Coincident", 0, 2, 1, 1),
    Sketcher.Constraint("Coincident", 1, 2, 2, 1),
    Sketcher.Constraint("Coincident", 2, 2, 3, 2),
    Sketcher.Constraint("Coincident", 6, 1, 0, 1),
    Sketcher.Constraint("Coincident", 7, 2, 8, 2),
    Sketcher.Constraint("Coincident", 10, 1, 11, 1),
    Sketcher.Constraint("Coincident", 11, 2, 12, 1),
    Sketcher.Constraint("Coincident", 12, 2, 7, 1),
    Sketcher.Constraint("Coincident", 13, 2, 14, 2),
    Sketcher.Constraint("Coincident", 15, 1, 16, 1),
    Sketcher.Constraint("Coincident", 16, 2, 17, 1),
    Sketcher.Constraint("Coincident", 17, 2, 13, 1),
    Sketcher.Constraint("Coincident", 18, 2, 19, 1),
    Sketcher.Constraint("Coincident", 19, 2, 20, 1),
    Sketcher.Constraint("Coincident", 20, 2, 21, 1),
    Sketcher.Constraint("Coincident", 21, 2, 22, 1),
    Sketcher.Constraint("Coincident", 22, 2, 23, 1),
    Sketcher.Constraint("Coincident", 23, 2, 24, 1),
    Sketcher.Constraint("Coincident", 24, 2, 25, 1),
    Sketcher.Constraint("Coincident", 25, 2, 26, 1),
    Sketcher.Constraint("Coincident", 26, 2, 27, 1),
    Sketcher.Constraint("Coincident", 27, 2, 28, 1),
    Sketcher.Constraint("Coincident", 28, 2, 29, 1),
    Sketcher.Constraint("Coincident", 29, 2, 30, 1),
    Sketcher.Constraint("Coincident", 30, 2, 18, 1),
    Sketcher.Constraint("Coincident", 31, 2, 32, 2),
    Sketcher.Constraint("Coincident", 38, 1, 39, 1),
    Sketcher.Constraint("Coincident", 39, 2, 40, 2),
    Sketcher.Constraint("Coincident", 47, 1, 31, 1),
    Sketcher.Constraint("Horizontal", 0),
    Sketcher.Constraint("Vertical", 1),
    Sketcher.Constraint("Horizontal", 2),
    Sketcher.Constraint("Horizontal", 7),
    Sketcher.Constraint("Horizontal", 11),
    Sketcher.Constraint("Vertical", 12),
    Sketcher.Constraint("Horizontal", 13),
    Sketcher.Constraint("Horizontal", 16),
    Sketcher.Constraint("Vertical", 17),
    Sketcher.Constraint("Horizontal", 19),
    Sketcher.Constraint("Horizontal", 22),
    Sketcher.Constraint("Horizontal", 25),
    Sketcher.Constraint("Horizontal", 27),
    Sketcher.Constraint("Horizontal", 30),
    Sketcher.Constraint("Horizontal", 2, 2, 18, 2),
    Sketcher.Constraint("Horizontal", 19, 2, 21, 2),
    Sketcher.Constraint("Horizontal", 22, 2, 24, 2),
    Sketcher.Constraint("Horizontal", 0, 2, 26, 2),
    Sketcher.Constraint("Horizontal", 27, 2, 29, 2),
    Sketcher.Constraint("Vertical", 12, 2, 16, 2),
    Sketcher.Constraint("Equal", 27, 30),
    Sketcher.Constraint("Distance", 20, Q("2.546098 mm")),
    Sketcher.Constraint("DistanceX", 27, 2, 27, 1, Q("0.044872 mm")),
    Sketcher.Constraint("DistanceX", 19, 2, 23, 2, Q("2.936999 mm")),
    Sketcher.Constraint("DistanceX", 30, 2, 20, 2, Q("0.188602 mm")),
    Sketcher.Constraint("DistanceX", 17, 2, 30, 2, Q("2.750501 mm")),
    Sketcher.Constraint("Distance", 21, Q("2.824788 mm")),
    Sketcher.Constraint("Distance", 23, Q("2.815379 mm")),
    Sketcher.Constraint("Distance", 24, Q("2.538731 mm")),
    Sketcher.Constraint("Distance", 26, Q("3.530918 mm")),
    Sketcher.Constraint("Distance", 29, Q("3.214851 mm")),
    Sketcher.Constraint("DistanceX", 0, 2, 0, 1, Q("0.682893 mm")),
    Sketcher.Constraint("DistanceX", 7, 1, 7, 2, Q("0.208233 mm")),
    Sketcher.Constraint("DistanceX", 19, 1, 19, 2, Q("0.316206 mm")),
    Sketcher.Constraint("DistanceX", 22, 1, 22, 2, Q("0.071514 mm")),
    Sketcher.Constraint("DistanceX", 25, 1, 25, 2, Q("0.314103 mm")),
    Sketcher.Constraint("DistanceY", 20, 2, -1, 1, Q("35.861538 mm")),
    Sketcher.Constraint("DistanceX", 28, 2, 22, 2, Q("0.038562 mm")),
])
pocket1 = body.newObject("PartDesign::Pocket", "Pocket")
pocket1.Profile = sketch2
pocket1.Type = "ThroughAll"
pocket1.Reversed = True

doc.recompute()
